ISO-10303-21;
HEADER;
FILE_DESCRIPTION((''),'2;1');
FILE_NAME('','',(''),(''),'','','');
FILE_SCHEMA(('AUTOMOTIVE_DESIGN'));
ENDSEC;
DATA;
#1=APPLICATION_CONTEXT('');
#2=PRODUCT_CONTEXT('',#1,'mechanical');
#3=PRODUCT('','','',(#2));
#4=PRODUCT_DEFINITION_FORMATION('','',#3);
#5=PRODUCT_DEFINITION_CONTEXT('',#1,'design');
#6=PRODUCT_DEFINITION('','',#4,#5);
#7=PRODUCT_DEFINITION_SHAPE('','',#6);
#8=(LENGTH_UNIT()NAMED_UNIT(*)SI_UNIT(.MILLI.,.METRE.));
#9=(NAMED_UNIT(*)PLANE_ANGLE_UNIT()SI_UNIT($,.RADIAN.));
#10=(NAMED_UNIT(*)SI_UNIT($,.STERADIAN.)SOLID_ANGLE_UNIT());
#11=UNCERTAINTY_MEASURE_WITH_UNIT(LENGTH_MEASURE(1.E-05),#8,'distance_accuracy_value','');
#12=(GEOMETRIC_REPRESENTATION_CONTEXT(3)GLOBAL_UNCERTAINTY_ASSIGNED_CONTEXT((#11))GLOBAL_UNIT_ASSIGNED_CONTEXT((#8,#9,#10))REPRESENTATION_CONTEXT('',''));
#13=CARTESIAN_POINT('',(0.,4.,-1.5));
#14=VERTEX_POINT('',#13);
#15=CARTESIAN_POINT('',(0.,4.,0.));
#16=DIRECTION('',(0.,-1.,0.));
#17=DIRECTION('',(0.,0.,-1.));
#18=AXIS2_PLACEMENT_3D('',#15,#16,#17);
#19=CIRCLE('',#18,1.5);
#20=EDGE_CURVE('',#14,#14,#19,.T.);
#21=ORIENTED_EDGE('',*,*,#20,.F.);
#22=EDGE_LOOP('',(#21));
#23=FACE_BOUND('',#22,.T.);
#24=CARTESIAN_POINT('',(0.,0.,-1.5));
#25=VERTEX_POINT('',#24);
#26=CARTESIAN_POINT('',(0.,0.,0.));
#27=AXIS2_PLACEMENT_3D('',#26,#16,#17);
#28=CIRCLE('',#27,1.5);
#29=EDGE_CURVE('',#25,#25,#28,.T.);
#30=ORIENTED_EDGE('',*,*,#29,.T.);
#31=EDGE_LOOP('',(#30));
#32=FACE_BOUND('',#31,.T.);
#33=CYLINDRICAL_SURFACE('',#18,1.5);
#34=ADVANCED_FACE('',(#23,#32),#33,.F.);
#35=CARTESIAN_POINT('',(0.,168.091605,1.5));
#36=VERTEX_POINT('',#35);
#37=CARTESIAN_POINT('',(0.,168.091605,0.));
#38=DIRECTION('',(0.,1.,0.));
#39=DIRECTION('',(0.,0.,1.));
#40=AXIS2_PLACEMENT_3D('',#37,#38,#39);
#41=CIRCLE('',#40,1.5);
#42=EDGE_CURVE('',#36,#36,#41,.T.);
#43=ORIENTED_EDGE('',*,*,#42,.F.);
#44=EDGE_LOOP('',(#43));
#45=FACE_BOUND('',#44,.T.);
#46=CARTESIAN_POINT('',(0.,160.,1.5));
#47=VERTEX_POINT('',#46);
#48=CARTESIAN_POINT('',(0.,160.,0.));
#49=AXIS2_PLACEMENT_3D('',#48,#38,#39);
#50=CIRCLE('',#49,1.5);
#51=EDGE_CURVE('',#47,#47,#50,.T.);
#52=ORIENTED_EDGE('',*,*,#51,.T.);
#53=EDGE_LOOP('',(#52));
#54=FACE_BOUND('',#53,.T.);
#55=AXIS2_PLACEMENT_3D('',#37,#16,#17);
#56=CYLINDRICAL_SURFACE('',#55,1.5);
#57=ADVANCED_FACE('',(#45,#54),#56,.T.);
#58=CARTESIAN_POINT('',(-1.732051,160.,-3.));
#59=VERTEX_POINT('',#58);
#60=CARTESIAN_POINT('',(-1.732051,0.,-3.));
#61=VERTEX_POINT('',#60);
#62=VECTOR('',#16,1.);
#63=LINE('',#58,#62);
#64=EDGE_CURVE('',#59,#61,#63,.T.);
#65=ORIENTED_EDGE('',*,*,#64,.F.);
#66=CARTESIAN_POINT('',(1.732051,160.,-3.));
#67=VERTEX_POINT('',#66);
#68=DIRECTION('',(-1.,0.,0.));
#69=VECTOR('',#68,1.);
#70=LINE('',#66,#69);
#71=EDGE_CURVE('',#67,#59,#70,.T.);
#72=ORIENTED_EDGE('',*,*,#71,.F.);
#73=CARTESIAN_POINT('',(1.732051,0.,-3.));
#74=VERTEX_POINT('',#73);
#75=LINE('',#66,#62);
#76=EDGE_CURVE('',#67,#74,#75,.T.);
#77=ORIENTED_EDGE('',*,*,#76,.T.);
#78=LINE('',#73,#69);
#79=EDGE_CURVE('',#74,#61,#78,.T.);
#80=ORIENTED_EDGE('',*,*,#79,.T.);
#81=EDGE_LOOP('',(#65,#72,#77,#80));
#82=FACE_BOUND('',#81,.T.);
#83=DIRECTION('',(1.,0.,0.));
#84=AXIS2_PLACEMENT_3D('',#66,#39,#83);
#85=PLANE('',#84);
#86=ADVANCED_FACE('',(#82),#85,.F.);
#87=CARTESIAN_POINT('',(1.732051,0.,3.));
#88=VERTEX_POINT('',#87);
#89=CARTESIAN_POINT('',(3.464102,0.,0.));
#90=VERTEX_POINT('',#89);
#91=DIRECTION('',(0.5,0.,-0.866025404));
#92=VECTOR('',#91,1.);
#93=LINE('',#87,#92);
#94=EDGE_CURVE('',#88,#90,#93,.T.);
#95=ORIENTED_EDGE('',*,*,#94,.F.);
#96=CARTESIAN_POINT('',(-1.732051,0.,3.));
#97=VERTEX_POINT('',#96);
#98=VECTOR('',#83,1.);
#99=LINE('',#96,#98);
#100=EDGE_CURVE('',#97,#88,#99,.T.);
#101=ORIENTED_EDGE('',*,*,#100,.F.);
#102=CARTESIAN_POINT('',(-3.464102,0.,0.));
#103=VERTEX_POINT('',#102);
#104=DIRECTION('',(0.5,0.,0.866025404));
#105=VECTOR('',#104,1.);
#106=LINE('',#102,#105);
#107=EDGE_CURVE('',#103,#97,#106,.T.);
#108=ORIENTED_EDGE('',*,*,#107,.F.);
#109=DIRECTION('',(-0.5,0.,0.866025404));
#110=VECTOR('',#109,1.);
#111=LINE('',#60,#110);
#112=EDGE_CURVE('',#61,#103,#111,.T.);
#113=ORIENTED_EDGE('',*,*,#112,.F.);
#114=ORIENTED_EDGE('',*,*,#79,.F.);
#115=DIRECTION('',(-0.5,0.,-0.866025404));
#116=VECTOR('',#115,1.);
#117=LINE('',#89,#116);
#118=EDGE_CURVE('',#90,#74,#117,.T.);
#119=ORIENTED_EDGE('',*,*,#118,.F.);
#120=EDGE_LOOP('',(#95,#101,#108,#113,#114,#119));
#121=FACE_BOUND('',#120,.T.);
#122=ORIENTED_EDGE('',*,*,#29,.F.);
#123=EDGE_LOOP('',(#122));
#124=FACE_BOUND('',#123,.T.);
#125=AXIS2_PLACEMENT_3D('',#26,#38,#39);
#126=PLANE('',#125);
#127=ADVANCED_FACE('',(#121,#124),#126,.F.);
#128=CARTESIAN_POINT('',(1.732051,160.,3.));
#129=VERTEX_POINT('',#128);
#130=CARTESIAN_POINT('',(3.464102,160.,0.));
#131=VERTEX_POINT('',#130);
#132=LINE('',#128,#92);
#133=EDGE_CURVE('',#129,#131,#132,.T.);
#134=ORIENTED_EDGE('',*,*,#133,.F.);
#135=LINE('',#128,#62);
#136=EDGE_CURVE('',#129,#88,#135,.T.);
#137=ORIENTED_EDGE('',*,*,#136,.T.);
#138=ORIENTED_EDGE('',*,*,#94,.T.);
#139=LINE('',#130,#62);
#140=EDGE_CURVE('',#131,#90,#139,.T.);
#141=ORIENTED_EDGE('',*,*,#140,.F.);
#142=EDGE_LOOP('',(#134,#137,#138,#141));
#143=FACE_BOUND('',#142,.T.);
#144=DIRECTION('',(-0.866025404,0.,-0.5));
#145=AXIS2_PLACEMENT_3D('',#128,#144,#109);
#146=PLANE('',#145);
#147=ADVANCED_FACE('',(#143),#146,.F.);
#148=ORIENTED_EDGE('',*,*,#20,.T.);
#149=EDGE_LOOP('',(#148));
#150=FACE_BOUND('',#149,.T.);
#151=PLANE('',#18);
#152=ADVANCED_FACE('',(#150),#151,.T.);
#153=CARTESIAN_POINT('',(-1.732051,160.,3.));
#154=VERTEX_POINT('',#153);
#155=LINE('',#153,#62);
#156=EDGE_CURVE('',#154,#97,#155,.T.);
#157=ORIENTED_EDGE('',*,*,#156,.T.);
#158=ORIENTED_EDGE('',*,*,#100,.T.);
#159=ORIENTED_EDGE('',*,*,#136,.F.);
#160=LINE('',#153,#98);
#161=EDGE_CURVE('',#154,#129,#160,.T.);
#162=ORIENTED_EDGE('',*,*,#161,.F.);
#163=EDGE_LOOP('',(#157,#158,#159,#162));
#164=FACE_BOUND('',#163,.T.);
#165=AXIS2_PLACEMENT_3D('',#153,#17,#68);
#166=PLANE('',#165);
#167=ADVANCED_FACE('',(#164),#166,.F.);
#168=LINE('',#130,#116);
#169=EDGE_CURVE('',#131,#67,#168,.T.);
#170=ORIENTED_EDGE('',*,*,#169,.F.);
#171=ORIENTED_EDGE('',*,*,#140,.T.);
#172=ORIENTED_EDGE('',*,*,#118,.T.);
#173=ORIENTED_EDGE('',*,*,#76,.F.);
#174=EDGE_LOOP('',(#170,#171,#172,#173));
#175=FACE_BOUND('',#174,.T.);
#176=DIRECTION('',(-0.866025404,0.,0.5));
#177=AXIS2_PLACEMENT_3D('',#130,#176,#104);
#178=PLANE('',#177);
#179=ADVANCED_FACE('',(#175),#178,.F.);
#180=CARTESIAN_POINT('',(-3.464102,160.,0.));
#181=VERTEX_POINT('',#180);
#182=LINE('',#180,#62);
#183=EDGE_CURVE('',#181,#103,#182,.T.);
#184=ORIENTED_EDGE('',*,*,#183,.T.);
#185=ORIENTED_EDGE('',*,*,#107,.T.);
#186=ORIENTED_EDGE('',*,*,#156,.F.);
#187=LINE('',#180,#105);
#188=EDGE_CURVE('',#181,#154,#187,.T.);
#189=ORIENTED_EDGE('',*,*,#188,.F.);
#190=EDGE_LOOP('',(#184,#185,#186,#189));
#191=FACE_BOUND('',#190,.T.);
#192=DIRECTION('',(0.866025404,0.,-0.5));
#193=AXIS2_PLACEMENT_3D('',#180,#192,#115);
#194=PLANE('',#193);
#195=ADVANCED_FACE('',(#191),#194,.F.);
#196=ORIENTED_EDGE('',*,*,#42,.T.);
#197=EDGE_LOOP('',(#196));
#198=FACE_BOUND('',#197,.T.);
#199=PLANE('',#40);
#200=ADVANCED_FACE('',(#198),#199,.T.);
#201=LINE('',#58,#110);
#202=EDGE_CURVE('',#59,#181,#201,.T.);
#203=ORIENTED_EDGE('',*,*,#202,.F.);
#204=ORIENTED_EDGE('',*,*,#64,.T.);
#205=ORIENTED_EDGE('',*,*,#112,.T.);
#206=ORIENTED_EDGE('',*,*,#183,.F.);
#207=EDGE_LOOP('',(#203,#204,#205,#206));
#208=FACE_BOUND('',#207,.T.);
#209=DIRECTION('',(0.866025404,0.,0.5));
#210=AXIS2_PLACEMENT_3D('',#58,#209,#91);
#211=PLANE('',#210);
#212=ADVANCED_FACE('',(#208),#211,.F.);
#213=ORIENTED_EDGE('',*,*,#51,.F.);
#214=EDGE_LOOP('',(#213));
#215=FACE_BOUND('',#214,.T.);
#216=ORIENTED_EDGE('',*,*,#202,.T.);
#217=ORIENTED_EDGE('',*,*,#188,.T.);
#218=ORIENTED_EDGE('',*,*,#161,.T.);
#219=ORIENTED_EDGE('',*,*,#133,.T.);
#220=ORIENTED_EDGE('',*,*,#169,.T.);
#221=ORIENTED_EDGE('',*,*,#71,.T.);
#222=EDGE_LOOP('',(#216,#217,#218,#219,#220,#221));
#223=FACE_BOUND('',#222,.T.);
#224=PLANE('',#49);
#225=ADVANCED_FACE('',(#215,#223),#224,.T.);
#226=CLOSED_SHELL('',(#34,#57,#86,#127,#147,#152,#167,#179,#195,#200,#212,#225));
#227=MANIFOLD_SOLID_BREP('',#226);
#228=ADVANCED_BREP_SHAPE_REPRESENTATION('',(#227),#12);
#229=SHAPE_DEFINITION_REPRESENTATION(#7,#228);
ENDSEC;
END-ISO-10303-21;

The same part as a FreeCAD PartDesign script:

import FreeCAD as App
import Part
import Sketcher
Q = App.Units.Quantity


def add_polygon(sketch, points):
    """Adds a closed chain of lines whose ends are joined by coincident constraints."""
    first, n = sketch.GeometryCount, len(points)
    for a, b in zip(points, points[1:] + points[:1]):
        sketch.addGeometry(Part.LineSegment(App.Vector(*a, 0), App.Vector(*b, 0)), False)
    for i in range(n):
        sketch.addConstraint(Sketcher.Constraint("Coincident", first + i, 2, first + (i + 1) % n, 1))

doc = App.newDocument("Part")
params = doc.addObject("Spreadsheet::Sheet", "Params")
for row, (alias, value) in enumerate([
    ("pad1_length", "160 mm"),
    ("sketch2_diameter", "3 mm"),
    ("pad2_length", "8.091605 mm"),
    ("sketch3_diameter", "3 mm"),
    ("pocket1_length", "4 mm"),
], start=1):
    params.set(f"A{row}", alias)
    params.set(f"B{row}", "=" + value)
    params.setAlias(f"B{row}", alias)

body = doc.addObject("PartDesign::Body", "Body")

# Sketch on XZ plane
sketch1 = doc.addObject("Sketcher::SketchObject", "Sketch")
body.addObject(sketch1)
sketch1.AttachmentSupport = (doc.XZ_Plane, [""])
sketch1.MapMode = "FlatFace"
add_polygon(sketch1, [(-3.464102, 0), (-1.732051, 3), (1.732051, 3), (3.464102, 0), (1.732051, -3), (-1.732051, -3)])  # lines 0-5
sketch1.addConstraint([
    Sketcher.Constraint("Horizontal", 1),
    Sketcher.Constraint("Horizontal", 4),
    Sketcher.Constraint("Symmetric", 0, 2, 3, 2, -1, 1),
    Sketcher.Constraint("Symmetric", 2, 2, 5, 2, -1, 1),
    Sketcher.Constraint("PointOnObject", 2, 2, -1),
    Sketcher.Constraint("Parallel", 2, 5),
    Sketcher.Constraint("Vertical", 1, 2, 3, 2),
    Sketcher.Constraint("Angle", 0, Q("60 deg")),
    Sketcher.Constraint("DistanceY", -1, 1, 0, 2, 3.0),
    Sketcher.Constraint("DistanceX", 1, 1, 1, 2, 3.464102),
])
pad1 = doc.addObject("PartDesign::Pad", "Pad")
body.addObject(pad1)
pad1.Profile = sketch1
pad1.setExpression("Length", "Params.pad1_length")
pad1.Reversed = True

# Sketch on XZ plane
sketch2 = doc.addObject("Sketcher::SketchObject", "Sketch001")
body.addObject(sketch2)
sketch2.AttachmentSupport = (doc.XZ_Plane, [""])
sketch2.MapMode = "FlatFace"
sketch2.AttachmentOffset = App.Placement(App.Vector(0, 0, -160), App.Rotation())
sketch2.addGeometry(Part.Circle(App.Vector(0, 0, 0), App.Vector(0, 0, 1), 1.5), False)
sketch2.addConstraint([
    Sketcher.Constraint("Coincident", 0, 3, -1, 1),
    Sketcher.Constraint("Diameter", 0, 3.0),
])
sketch2.setExpression("Constraints[1]", "Params.sketch2_diameter")
pad2 = doc.addObject("PartDesign::Pad", "Pad001")
body.addObject(pad2)
pad2.Profile = sketch2
pad2.setExpression("Length", "Params.pad2_length")
pad2.Reversed = True

# Sketch on XZ plane
sketch3 = doc.addObject("Sketcher::SketchObject", "Sketch002")
body.addObject(sketch3)
sketch3.AttachmentSupport = (doc.XZ_Plane, [""])
sketch3.MapMode = "FlatFace"
sketch3.addGeometry(Part.Circle(App.Vector(0, 0, 0), App.Vector(0, 0, 1), 1.5), False)
sketch3.addConstraint([
    Sketcher.Constraint("Coincident", 0, 3, -1, 1),
    Sketcher.Constraint("Diameter", 0, 3.0),
])
sketch3.setExpression("Constraints[1]", "Params.sketch3_diameter")
pocket1 = doc.addObject("PartDesign::Pocket", "Pocket")
body.addObject(pocket1)
pocket1.Profile = sketch3
pocket1.setExpression("Length", "Params.pocket1_length")

doc.recompute()
